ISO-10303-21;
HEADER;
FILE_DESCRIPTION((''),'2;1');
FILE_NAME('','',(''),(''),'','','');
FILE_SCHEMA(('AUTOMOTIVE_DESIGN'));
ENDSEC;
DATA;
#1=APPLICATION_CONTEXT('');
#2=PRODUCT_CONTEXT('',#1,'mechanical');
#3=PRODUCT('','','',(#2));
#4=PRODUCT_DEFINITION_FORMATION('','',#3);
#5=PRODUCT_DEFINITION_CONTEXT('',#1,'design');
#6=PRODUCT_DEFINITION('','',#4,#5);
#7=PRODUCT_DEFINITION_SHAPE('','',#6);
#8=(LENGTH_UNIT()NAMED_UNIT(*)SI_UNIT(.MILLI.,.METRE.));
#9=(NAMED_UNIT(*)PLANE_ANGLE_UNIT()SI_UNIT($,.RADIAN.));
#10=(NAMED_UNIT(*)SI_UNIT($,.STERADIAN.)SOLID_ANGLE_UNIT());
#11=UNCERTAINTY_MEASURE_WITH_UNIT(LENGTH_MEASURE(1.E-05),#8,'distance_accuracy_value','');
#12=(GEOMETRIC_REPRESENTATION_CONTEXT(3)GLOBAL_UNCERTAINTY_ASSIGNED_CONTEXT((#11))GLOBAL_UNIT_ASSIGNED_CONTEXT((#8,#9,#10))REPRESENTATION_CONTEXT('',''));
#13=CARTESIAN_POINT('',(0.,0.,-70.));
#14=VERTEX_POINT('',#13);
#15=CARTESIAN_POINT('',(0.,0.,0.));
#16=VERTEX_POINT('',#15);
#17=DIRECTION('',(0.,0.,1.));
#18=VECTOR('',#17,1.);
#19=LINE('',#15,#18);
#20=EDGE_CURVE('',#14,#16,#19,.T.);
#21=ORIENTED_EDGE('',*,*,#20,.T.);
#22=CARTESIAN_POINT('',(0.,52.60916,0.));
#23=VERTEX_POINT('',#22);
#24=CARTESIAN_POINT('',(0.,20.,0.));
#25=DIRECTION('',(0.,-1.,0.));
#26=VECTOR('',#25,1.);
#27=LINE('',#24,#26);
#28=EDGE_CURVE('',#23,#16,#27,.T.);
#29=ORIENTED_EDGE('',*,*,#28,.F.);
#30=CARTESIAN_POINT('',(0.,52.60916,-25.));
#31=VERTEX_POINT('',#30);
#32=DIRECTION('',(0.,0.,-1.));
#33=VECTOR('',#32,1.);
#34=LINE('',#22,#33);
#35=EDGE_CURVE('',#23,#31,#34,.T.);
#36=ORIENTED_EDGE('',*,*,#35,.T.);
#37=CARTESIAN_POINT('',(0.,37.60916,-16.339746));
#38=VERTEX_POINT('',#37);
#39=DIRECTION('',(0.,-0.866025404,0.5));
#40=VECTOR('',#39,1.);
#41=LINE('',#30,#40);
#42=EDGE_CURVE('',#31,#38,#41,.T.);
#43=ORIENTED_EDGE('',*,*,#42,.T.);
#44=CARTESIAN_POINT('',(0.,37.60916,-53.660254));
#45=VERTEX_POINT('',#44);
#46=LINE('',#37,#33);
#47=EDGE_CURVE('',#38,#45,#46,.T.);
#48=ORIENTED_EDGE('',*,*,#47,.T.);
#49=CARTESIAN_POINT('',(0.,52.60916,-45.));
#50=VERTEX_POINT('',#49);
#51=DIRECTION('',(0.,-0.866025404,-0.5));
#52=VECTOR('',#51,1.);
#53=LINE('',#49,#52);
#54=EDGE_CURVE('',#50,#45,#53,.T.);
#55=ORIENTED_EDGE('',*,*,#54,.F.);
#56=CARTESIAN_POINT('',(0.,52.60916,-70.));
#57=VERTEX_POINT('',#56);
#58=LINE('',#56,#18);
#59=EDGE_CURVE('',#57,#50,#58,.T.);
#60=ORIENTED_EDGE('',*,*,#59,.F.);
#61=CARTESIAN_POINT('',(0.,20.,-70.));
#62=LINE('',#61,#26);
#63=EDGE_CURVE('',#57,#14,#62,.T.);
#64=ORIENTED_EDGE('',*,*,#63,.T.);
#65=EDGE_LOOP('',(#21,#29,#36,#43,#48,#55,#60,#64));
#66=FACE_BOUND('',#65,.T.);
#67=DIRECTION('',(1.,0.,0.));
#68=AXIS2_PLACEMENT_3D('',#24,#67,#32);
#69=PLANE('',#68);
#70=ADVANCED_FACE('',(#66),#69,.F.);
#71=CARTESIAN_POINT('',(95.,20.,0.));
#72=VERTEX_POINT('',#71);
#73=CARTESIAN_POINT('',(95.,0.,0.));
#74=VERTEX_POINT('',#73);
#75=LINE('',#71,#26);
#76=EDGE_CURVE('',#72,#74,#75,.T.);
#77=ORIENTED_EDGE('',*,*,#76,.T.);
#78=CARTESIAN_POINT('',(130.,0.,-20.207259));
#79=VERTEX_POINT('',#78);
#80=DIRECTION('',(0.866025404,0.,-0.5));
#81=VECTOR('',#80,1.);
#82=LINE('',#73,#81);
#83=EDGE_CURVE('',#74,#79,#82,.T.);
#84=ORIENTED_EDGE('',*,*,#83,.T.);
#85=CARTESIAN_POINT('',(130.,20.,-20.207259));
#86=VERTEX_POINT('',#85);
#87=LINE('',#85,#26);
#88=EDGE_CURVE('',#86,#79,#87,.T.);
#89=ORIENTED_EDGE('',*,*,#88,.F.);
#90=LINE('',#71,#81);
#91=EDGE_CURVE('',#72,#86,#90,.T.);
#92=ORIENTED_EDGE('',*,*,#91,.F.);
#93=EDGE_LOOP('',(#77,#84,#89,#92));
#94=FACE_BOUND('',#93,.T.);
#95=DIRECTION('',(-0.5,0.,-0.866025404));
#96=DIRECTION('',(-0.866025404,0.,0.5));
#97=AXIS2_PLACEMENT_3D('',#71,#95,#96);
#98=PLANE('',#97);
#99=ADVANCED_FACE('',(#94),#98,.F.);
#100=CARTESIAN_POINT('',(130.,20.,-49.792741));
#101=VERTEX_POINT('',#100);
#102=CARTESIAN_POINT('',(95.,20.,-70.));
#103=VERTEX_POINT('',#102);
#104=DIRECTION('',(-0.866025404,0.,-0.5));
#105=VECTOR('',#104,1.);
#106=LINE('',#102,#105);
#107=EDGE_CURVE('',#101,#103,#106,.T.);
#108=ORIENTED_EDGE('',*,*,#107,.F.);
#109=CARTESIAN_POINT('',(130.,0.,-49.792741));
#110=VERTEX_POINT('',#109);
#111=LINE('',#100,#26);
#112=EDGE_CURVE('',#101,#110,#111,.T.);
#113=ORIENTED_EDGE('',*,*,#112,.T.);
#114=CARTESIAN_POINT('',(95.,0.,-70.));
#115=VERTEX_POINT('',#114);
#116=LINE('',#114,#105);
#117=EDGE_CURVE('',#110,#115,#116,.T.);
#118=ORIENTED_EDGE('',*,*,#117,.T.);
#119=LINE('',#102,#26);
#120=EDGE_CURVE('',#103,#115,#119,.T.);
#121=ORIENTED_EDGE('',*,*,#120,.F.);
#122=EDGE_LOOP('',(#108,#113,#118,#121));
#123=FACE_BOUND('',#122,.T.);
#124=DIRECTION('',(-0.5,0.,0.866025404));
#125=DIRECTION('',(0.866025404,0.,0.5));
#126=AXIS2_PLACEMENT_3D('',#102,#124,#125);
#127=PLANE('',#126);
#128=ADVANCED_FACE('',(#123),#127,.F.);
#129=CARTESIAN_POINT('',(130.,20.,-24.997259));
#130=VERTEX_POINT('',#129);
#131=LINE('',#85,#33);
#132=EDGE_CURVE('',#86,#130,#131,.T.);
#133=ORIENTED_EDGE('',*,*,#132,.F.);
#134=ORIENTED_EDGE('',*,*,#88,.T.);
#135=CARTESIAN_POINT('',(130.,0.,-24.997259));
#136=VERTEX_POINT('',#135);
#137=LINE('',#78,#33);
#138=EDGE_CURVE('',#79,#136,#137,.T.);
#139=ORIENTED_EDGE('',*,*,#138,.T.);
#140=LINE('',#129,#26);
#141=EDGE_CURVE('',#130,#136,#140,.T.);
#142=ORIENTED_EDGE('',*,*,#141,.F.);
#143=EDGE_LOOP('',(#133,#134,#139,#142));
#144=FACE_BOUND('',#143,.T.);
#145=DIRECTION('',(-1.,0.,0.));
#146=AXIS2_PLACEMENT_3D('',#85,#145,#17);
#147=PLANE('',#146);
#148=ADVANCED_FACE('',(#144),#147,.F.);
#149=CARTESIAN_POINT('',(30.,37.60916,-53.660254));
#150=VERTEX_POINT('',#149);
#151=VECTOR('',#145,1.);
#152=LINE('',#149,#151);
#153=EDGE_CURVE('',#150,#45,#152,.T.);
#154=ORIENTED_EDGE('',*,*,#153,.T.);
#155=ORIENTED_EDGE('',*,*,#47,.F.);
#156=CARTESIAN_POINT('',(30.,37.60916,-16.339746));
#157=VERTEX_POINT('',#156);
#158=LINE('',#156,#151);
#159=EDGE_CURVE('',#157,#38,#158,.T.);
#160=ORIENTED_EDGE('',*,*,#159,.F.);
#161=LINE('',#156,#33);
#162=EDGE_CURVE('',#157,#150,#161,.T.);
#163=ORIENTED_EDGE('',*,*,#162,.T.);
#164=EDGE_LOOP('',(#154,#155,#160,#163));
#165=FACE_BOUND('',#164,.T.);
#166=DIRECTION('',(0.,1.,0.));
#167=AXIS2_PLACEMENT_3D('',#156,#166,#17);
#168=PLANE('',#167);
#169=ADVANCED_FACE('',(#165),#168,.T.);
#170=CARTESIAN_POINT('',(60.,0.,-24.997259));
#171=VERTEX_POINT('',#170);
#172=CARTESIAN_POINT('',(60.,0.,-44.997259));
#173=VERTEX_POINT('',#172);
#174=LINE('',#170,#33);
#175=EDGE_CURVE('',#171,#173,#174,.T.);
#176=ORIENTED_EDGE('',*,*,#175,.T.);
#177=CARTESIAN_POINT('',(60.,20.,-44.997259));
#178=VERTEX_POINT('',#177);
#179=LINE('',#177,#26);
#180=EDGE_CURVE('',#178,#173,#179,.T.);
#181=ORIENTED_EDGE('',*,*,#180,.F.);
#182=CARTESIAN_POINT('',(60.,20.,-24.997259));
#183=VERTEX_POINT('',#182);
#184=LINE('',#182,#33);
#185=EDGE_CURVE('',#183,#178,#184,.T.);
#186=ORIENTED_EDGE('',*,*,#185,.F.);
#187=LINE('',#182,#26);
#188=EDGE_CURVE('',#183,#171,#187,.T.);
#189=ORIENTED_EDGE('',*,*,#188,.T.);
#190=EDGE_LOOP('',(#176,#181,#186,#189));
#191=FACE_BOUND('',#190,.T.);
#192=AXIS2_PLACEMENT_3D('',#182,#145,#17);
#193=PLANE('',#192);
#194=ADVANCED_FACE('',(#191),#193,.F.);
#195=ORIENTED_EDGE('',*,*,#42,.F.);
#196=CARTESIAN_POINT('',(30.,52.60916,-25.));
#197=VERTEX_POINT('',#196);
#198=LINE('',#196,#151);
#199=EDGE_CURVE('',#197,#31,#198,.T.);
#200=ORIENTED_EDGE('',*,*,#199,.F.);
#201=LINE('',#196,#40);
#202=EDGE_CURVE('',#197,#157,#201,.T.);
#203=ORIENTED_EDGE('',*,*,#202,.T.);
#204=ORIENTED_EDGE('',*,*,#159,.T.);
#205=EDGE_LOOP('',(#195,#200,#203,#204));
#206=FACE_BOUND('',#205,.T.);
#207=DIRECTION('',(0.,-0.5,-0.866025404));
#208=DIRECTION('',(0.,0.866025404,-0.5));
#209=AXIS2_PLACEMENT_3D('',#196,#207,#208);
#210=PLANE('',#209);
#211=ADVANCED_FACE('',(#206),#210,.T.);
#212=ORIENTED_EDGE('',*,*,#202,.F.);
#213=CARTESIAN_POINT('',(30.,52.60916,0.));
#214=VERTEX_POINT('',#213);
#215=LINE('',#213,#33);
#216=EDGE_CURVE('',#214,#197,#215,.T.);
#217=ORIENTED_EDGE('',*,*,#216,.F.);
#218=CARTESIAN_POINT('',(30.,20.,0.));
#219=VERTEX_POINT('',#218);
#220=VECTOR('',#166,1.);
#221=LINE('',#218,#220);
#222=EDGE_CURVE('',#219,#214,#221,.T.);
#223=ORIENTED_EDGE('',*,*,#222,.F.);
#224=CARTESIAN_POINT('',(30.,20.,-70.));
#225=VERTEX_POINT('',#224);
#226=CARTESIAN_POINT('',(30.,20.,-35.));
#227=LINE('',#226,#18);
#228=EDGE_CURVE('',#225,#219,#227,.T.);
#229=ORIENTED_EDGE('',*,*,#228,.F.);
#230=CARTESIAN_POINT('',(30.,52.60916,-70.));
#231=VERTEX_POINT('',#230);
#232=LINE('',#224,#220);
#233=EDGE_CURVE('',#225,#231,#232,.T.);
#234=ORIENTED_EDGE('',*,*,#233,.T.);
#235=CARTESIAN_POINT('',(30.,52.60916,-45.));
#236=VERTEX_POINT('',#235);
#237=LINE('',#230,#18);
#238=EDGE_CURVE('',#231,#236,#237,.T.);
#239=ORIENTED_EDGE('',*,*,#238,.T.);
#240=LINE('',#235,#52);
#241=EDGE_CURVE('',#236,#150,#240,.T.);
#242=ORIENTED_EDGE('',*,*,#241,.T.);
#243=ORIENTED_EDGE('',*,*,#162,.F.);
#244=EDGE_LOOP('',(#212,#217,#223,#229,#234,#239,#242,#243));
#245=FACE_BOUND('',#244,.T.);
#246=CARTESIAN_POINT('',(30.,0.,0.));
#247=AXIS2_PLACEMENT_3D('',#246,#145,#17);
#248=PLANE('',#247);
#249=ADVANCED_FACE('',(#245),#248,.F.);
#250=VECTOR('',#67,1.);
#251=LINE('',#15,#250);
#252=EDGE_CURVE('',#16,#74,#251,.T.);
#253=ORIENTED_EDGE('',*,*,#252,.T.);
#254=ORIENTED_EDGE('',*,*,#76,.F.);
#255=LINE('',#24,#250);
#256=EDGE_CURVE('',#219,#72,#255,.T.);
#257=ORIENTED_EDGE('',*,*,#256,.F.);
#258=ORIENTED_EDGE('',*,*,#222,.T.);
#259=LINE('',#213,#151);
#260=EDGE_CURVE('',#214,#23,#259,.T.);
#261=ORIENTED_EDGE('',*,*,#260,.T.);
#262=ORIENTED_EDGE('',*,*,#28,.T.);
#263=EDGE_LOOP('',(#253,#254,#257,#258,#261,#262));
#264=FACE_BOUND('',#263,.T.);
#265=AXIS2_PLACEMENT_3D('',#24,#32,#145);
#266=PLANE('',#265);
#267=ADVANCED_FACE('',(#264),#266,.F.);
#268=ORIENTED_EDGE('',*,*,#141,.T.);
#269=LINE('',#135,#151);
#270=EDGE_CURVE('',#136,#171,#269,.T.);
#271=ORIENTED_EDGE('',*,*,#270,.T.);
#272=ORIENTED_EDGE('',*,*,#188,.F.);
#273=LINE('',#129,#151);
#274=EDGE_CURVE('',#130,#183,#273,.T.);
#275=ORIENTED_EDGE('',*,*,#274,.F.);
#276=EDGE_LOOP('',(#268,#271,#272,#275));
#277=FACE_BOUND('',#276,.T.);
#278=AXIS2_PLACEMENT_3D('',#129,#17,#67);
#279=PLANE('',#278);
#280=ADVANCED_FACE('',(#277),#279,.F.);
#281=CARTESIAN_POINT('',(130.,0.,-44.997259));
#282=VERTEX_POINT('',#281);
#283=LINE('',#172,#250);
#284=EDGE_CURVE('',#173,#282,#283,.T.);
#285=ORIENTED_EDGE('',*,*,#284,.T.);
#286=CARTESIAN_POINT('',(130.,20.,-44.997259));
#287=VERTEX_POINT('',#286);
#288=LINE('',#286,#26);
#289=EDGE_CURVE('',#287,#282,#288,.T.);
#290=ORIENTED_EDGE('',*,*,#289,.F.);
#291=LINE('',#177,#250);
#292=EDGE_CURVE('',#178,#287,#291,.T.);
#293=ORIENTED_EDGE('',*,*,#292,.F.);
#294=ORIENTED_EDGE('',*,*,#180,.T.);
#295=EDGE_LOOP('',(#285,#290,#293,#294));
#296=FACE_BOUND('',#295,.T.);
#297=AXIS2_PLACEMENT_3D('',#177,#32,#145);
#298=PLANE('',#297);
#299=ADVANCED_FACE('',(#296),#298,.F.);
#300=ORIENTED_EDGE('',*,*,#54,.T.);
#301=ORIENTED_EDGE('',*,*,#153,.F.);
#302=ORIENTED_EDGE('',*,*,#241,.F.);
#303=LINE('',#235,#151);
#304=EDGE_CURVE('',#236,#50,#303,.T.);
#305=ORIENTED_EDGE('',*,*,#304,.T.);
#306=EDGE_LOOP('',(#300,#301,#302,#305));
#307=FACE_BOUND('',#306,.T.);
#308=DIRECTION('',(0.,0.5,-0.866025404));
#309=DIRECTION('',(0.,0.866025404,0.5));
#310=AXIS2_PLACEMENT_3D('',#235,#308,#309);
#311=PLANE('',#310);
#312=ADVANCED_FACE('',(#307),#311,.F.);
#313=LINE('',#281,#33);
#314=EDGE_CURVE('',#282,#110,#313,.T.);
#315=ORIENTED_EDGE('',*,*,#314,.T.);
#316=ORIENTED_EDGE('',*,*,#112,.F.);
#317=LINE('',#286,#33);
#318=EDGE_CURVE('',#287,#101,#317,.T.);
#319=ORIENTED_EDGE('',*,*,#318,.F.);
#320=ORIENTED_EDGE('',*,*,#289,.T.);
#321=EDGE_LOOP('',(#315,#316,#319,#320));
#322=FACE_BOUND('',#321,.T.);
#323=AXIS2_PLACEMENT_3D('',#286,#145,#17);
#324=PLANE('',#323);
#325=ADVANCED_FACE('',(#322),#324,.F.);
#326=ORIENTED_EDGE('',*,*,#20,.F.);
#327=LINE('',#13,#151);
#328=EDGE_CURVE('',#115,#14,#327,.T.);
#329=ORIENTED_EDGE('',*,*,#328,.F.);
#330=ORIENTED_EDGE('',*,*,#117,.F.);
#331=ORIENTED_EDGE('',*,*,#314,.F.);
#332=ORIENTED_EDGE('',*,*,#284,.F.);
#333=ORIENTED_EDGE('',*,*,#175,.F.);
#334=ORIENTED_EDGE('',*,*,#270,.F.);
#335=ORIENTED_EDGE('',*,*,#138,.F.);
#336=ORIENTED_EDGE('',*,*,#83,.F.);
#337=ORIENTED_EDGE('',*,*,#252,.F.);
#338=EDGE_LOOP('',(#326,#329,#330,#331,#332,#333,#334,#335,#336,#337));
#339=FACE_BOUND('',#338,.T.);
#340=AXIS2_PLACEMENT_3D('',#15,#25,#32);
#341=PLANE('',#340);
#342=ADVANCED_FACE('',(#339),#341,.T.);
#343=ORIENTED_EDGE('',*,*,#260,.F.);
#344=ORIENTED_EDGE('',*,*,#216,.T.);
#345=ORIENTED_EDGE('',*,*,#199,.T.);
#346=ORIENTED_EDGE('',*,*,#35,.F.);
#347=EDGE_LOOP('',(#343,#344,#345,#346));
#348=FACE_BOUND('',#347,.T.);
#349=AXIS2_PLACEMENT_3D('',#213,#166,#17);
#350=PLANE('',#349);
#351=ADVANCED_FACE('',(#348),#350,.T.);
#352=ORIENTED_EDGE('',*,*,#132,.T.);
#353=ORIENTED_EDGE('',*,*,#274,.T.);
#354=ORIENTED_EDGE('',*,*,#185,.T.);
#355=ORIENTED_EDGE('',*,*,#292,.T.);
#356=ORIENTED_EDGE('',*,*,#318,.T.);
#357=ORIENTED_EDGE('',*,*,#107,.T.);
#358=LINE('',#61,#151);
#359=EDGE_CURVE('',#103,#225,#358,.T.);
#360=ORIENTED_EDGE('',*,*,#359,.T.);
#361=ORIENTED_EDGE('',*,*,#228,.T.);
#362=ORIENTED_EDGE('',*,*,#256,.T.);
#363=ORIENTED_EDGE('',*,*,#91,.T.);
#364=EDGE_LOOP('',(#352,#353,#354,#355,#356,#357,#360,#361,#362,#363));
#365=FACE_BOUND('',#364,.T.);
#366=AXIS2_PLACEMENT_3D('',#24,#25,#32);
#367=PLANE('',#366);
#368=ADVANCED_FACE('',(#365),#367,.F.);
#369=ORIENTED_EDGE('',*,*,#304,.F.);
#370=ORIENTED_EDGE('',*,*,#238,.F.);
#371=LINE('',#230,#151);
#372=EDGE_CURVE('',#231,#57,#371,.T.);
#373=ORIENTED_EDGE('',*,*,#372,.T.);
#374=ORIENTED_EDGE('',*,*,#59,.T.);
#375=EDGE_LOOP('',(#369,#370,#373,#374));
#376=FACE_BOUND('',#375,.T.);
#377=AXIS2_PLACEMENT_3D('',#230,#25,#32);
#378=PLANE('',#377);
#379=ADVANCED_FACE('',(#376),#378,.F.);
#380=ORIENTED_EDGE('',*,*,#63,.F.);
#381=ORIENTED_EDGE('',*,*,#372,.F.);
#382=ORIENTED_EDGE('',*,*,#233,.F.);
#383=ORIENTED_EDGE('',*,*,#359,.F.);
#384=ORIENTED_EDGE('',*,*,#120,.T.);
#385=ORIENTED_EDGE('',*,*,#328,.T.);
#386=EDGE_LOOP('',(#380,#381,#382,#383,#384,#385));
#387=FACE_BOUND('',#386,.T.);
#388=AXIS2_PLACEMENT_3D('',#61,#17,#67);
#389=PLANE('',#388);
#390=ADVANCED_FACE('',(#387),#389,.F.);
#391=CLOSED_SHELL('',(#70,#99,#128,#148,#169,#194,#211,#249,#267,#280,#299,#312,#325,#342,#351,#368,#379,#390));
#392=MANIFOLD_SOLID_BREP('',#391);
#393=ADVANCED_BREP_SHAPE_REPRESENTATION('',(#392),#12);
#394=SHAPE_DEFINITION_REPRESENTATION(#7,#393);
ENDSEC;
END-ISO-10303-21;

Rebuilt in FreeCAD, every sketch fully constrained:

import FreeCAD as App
import Part
import Sketcher
from FreeCAD import Vector
Q = App.Units.Quantity

doc = App.newDocument("Part")
body = doc.addObject("PartDesign::Body", "Body")

# Sketch on XZ plane
sketch1 = doc.addObject("Sketcher::SketchObject", "Sketch")
body.addObject(sketch1)
sketch1.AttachmentSupport = (doc.XZ_Plane, [""])
sketch1.MapMode = "FlatFace"
sketch1.addGeometry([
    Part.LineSegment(Vector(130, -20.2, 0), Vector(130, -25, 0)),  # 0
    Part.LineSegment(Vector(130, -25, 0), Vector(60, -25, 0)),  # 1
    Part.LineSegment(Vector(60, -25, 0), Vector(60, -45, 0)),  # 2
    Part.LineSegment(Vector(60, -45, 0), Vector(130, -45, 0)),  # 3
    Part.LineSegment(Vector(130, -45, 0), Vector(130, -49.8, 0)),  # 4
    Part.LineSegment(Vector(130, -49.8, 0), Vector(95, -70, 0)),  # 5
    Part.LineSegment(Vector(95, -70, 0), Vector(0, -70, 0)),  # 6
    Part.LineSegment(Vector(0, -70, 0), Vector(0, 0, 0)),  # 7
    Part.LineSegment(Vector(0, 0, 0), Vector(95, 0, 0)),  # 8
    Part.LineSegment(Vector(95, 0, 0), Vector(130, -20.2, 0)),  # 9
], False)
sketch1.addConstraint([
    Sketcher.Constraint("Coincident", 0, 2, 1, 1),
    Sketcher.Constraint("Coincident", 1, 2, 2, 1),
    Sketcher.Constraint("Coincident", 2, 2, 3, 1),
    Sketcher.Constraint("Coincident", 3, 2, 4, 1),
    Sketcher.Constraint("Coincident", 4, 2, 5, 1),
    Sketcher.Constraint("Coincident", 5, 2, 6, 1),
    Sketcher.Constraint("Coincident", 6, 2, 7, 1),
    Sketcher.Constraint("Coincident", 7, 2, 8, 1),
    Sketcher.Constraint("Coincident", 8, 2, 9, 1),
    Sketcher.Constraint("Coincident", 9, 2, 0, 1),
    Sketcher.Constraint("Vertical", 0),
    Sketcher.Constraint("Horizontal", 1),
    Sketcher.Constraint("Vertical", 2),
    Sketcher.Constraint("Horizontal", 3),
    Sketcher.Constraint("Vertical", 4),
    Sketcher.Constraint("Horizontal", 6),
    Sketcher.Constraint("Vertical", 7),
    Sketcher.Constraint("Horizontal", 8),
    Sketcher.Constraint("Coincident", 7, 2, -1, 1),
    Sketcher.Constraint("Vertical", 0, 2, 3, 2),
    Sketcher.Constraint("Vertical", 5, 2, 8, 2),
    Sketcher.Constraint("Equal", 3, 7),
    Sketcher.Constraint("Equal", 5, 9),
    Sketcher.Constraint("DistanceX", 1, 2, 1, 1, 70.0),
    Sketcher.Constraint("DistanceX", 6, 2, 6, 1, 95.0),
    Sketcher.Constraint("DistanceY", 2, 2, 2, 1, 20.0),
    Sketcher.Constraint("Angle", 5, Q("-150 deg")),
    Sketcher.Constraint("DistanceX", -1, 1, 0, 2, 130.0),
    Sketcher.Constraint("DistanceY", 0, 2, 0, 1, 4.79),
])
pad1 = doc.addObject("PartDesign::Pad", "Pad")
body.addObject(pad1)
pad1.Profile = sketch1
pad1.Length = 20
pad1.Reversed = True

# Sketch on YZ plane
sketch2 = doc.addObject("Sketcher::SketchObject", "Sketch001")
body.addObject(sketch2)
sketch2.AttachmentSupport = (doc.YZ_Plane, [""])
sketch2.MapMode = "FlatFace"
sketch2.addGeometry([
    Part.LineSegment(Vector(20, 0, 0), Vector(53, 0, 0)),  # 0
    Part.LineSegment(Vector(53, 0, 0), Vector(53, -25, 0)),  # 1
    Part.LineSegment(Vector(53, -25, 0), Vector(38, -16, 0)),  # 2
    Part.LineSegment(Vector(38, -16, 0), Vector(38, -35, 0)),  # 3
    Part.LineSegment(Vector(38, -35, 0), Vector(20, -35, 0)),  # 4
    Part.LineSegment(Vector(20, -35, 0), Vector(20, 0, 0)),  # 5
], False)
sketch2.addConstraint([
    Sketcher.Constraint("Coincident", 0, 2, 1, 1),
    Sketcher.Constraint("Coincident", 1, 2, 2, 1),
    Sketcher.Constraint("Coincident", 2, 2, 3, 1),
    Sketcher.Constraint("Coincident", 3, 2, 4, 1),
    Sketcher.Constraint("Coincident", 4, 2, 5, 1),
    Sketcher.Constraint("Coincident", 5, 2, 0, 1),
    Sketcher.Constraint("Horizontal", 0),
    Sketcher.Constraint("Vertical", 1),
    Sketcher.Constraint("Vertical", 3),
    Sketcher.Constraint("Horizontal", 4),
    Sketcher.Constraint("Vertical", 5),
    Sketcher.Constraint("PointOnObject", 0, 2, -1),
    Sketcher.Constraint("DistanceY", 1, 2, 1, 1, 25.0),
    Sketcher.Constraint("DistanceY", 5, 1, 5, 2, 35.0),
    Sketcher.Constraint("Angle", 2, Q("150 deg")),
    Sketcher.Constraint("DistanceX", -1, 1, 4, 2, 20.0),
    Sketcher.Constraint("DistanceX", 2, 2, 1, 2, 15.0),
    Sketcher.Constraint("DistanceX", 0, 1, 0, 2, 32.60916),
])
pad2 = doc.addObject("PartDesign::Pad", "Pad001")
body.addObject(pad2)
pad2.Profile = sketch2
pad2.Length = 30
doc.recompute()

datumplane = doc.addObject("PartDesign::Plane", "DatumPlane")
body.addObject(datumplane)
datumplane.AttachmentSupport = (doc.XY_Plane, [""])
datumplane.MapMode = "FlatFace"
datumplane.AttachmentOffset = App.Placement(Vector(0, 0, -35), App.Rotation())
mirrored = doc.addObject("PartDesign::Mirrored", "Mirrored")
body.addObject(mirrored)
mirrored.Originals = [pad2]
mirrored.MirrorPlane = (datumplane, [""])
body.Tip = mirrored

doc.recompute()
